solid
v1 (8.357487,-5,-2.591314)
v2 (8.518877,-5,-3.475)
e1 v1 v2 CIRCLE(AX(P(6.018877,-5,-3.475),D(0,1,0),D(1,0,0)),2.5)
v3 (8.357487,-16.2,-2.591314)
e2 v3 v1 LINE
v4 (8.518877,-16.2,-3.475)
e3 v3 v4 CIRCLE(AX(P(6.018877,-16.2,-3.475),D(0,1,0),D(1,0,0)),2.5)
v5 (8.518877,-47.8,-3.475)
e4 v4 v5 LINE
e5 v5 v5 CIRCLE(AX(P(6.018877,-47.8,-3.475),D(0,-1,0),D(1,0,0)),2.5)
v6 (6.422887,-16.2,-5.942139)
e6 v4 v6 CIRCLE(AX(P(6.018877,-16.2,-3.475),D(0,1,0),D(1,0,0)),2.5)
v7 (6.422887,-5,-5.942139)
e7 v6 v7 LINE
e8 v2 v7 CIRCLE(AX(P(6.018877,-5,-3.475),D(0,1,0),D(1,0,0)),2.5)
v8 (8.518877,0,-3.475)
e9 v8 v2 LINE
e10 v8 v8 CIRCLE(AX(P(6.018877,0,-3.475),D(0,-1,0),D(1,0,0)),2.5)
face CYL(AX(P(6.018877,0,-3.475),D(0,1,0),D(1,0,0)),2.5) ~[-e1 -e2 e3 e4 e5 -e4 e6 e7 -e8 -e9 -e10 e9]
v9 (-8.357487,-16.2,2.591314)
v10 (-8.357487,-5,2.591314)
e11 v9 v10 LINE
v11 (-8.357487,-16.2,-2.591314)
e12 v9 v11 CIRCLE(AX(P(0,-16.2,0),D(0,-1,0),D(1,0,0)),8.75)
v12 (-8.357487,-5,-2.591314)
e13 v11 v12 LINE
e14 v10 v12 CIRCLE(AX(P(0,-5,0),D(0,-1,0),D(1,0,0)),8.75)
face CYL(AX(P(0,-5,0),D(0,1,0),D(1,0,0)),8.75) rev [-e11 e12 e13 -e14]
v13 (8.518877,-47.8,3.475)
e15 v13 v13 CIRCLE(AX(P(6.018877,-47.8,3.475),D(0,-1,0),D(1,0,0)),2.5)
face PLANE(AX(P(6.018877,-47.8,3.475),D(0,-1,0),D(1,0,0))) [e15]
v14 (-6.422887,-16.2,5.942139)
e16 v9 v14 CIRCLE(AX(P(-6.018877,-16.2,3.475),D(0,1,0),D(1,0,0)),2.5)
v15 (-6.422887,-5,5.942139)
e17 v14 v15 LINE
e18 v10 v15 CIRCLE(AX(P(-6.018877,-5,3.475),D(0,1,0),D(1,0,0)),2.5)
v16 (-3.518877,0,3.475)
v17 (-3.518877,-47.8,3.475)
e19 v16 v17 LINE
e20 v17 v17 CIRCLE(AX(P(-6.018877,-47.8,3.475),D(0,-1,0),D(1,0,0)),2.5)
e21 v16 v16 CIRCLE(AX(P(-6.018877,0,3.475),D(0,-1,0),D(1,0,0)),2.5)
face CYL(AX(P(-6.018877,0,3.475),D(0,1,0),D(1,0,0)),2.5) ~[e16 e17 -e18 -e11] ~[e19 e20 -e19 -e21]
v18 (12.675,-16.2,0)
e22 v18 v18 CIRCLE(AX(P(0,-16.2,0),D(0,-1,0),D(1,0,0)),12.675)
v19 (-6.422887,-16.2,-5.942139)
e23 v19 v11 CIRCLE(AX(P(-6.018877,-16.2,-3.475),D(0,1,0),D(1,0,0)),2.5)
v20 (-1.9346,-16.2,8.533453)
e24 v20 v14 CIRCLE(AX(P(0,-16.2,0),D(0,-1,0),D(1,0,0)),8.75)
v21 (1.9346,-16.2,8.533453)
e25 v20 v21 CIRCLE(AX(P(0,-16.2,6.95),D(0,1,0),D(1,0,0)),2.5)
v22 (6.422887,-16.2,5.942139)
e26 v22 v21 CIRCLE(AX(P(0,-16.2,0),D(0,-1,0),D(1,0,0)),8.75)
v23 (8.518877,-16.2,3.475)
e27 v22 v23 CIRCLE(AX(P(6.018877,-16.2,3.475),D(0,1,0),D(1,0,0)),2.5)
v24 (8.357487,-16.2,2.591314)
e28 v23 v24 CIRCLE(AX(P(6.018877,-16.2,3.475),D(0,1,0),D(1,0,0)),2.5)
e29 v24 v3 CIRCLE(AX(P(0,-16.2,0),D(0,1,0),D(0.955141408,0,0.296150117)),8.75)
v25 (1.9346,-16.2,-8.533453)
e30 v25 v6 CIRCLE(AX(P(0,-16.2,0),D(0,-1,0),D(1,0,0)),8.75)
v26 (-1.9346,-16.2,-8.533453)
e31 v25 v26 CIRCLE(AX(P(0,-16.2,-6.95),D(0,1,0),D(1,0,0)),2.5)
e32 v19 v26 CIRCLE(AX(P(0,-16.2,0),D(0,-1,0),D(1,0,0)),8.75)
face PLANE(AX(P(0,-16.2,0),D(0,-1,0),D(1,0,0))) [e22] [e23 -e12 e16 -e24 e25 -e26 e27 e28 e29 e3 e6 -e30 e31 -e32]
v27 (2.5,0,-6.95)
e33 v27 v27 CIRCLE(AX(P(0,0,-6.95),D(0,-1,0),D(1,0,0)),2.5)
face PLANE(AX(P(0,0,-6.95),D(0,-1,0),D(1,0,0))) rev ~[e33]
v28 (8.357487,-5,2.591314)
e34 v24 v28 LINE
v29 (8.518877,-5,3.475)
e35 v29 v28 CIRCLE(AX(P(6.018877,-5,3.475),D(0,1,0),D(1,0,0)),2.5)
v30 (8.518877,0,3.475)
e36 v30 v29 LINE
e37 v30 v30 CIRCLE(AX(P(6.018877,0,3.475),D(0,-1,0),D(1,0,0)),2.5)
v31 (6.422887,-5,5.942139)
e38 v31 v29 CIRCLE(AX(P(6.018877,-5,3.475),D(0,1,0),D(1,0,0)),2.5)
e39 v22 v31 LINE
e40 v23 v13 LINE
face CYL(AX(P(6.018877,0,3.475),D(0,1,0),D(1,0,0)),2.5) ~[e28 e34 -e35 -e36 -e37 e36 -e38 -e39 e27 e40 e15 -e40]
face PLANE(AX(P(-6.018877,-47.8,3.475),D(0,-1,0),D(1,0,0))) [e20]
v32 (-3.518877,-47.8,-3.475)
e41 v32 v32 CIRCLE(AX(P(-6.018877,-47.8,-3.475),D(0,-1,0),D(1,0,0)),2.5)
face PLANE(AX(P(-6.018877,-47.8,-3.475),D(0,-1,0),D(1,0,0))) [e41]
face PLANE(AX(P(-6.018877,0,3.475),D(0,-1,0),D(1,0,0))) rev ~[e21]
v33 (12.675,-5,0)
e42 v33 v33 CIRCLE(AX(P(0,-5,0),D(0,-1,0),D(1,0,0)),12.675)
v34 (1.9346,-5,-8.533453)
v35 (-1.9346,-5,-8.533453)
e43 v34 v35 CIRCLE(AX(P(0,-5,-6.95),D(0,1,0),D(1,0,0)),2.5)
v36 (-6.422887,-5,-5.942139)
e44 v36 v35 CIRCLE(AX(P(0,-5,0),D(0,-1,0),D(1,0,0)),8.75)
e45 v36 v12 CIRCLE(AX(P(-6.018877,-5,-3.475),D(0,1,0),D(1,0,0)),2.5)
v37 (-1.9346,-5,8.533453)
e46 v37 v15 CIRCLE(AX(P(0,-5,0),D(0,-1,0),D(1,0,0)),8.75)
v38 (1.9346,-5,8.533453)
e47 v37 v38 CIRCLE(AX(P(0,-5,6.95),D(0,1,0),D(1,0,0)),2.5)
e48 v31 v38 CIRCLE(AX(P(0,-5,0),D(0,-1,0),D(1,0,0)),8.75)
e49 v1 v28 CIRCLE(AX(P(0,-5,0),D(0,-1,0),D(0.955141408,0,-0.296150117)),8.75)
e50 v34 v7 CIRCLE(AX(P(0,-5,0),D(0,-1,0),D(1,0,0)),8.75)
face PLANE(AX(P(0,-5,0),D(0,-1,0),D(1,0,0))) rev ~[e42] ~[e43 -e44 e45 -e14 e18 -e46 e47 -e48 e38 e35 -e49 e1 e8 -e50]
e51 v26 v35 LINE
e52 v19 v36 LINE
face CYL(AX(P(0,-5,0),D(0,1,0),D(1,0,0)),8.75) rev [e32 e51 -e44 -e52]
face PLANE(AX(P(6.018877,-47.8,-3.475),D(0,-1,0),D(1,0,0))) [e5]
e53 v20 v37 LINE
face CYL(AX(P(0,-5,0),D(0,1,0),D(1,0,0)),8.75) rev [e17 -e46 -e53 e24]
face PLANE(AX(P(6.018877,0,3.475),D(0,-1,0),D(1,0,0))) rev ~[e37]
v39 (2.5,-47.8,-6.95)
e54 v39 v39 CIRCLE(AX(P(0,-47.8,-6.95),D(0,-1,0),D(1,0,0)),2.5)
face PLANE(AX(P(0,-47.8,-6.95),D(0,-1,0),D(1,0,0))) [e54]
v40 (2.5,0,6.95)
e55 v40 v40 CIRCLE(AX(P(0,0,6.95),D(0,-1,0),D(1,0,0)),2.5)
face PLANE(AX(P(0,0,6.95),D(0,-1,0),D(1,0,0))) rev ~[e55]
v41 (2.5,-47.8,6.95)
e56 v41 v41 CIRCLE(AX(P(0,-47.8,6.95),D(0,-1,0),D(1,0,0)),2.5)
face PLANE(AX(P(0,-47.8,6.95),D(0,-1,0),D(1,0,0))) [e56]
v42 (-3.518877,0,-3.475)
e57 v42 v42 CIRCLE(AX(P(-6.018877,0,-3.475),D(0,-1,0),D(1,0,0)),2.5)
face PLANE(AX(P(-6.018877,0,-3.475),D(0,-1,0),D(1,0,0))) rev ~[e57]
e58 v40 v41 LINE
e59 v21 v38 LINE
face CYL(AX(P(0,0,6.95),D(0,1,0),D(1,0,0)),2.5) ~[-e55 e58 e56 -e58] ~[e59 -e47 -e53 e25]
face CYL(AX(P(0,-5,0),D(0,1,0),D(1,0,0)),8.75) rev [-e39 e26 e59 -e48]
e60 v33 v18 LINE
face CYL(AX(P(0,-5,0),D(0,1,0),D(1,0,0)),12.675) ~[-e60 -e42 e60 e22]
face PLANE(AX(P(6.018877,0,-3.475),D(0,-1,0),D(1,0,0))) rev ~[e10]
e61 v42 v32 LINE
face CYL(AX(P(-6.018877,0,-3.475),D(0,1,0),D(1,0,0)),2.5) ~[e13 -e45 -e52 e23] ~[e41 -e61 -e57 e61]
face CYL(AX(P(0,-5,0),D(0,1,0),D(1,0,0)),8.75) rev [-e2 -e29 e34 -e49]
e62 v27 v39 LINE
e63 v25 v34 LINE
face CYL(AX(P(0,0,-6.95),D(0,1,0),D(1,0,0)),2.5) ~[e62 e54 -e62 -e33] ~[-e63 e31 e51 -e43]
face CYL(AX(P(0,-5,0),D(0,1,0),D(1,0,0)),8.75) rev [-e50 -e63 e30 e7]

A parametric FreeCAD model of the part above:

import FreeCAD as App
import Part
import Sketcher
Q = App.Units.Quantity

doc = App.newDocument("Part")
body = doc.addObject("PartDesign::Body", "Body")
body.AllowCompound = True

# Sketch on XZ plane
sketch1 = body.newObject("Sketcher::SketchObject", "Sketch")
sketch1.AttachmentSupport = (doc.getObject("XZ_Plane"), [""])
sketch1.MapMode = "FlatFace"
sketch1.addGeometry([
    Part.Circle(App.Vector(0, 6.95, 0), App.Vector(0, 0, 1), 2.5),  # 0
    Part.Circle(App.Vector(-6.018877, 3.475, 0), App.Vector(0, 0, 1), 2.5),  # 1
    Part.Circle(App.Vector(-6.018877, -3.475, 0), App.Vector(0, 0, 1), 2.5),  # 2
    Part.Circle(App.Vector(0, -6.95, 0), App.Vector(0, 0, 1), 2.5),  # 3
    Part.Circle(App.Vector(6.018877, -3.475, 0), App.Vector(0, 0, 1), 2.5),  # 4
    Part.Circle(App.Vector(6.018877, 3.475, 0), App.Vector(0, 0, 1), 2.5),  # 5
], False)
sketch1.addConstraint([
    Sketcher.Constraint("Equal", 0, 1),
    Sketcher.Constraint("Equal", 1, 2),
    Sketcher.Constraint("Equal", 2, 3),
    Sketcher.Constraint("Equal", 3, 4),
    Sketcher.Constraint("Equal", 4, 5),
    Sketcher.Constraint("Symmetric", 0, 3, 3, 3, -1, 1),
    Sketcher.Constraint("Symmetric", 1, 3, 4, 3, -1, 1),
    Sketcher.Constraint("Symmetric", 2, 3, 5, 3, -1, 1),
    Sketcher.Constraint("Symmetric", 2, 3, 4, 3, -2),
    Sketcher.Constraint("PointOnObject", 0, 3, -2),
    Sketcher.Constraint("Diameter", 0, Q("5 mm")),
    Sketcher.Constraint("DistanceY", 3, 3, 0, 3, Q("13.9 mm")),
    Sketcher.Constraint("DistanceY", 2, 3, 1, 3, Q("6.95 mm")),
    Sketcher.Constraint("DistanceX", 1, 3, -1, 1, Q("6.018877 mm")),
])
pad1 = body.newObject("PartDesign::Pad", "Pad")
pad1.Profile = sketch1
pad1.Length = 47.8

# Sketch on XZ plane
sketch2 = body.newObject("Sketcher::SketchObject", "Sketch001")
sketch2.AttachmentSupport = (doc.getObject("XZ_Plane"), [""])
sketch2.MapMode = "FlatFace"
sketch2.AttachmentOffset = App.Placement(App.Vector(0, 0, 5), App.Rotation())
sketch2.addGeometry([
    Part.Circle(App.Vector(0, 0, 0), App.Vector(0, 0, 1), 12.675),
    Part.Circle(App.Vector(0, 0, 0), App.Vector(0, 0, 1), 8.75),
], False)
sketch2.addConstraint([
    Sketcher.Constraint("Coincident", 0, 3, -1, 1),
    Sketcher.Constraint("Coincident", 1, 3, -1, 1),
    Sketcher.Constraint("Diameter", 1, Q("17.5 mm")),
    Sketcher.Constraint("Diameter", 0, Q("25.35 mm")),
])
pad2 = body.newObject("PartDesign::Pad", "Pad001")
pad2.Profile = sketch2
pad2.Length = 11.2

doc.recompute()
